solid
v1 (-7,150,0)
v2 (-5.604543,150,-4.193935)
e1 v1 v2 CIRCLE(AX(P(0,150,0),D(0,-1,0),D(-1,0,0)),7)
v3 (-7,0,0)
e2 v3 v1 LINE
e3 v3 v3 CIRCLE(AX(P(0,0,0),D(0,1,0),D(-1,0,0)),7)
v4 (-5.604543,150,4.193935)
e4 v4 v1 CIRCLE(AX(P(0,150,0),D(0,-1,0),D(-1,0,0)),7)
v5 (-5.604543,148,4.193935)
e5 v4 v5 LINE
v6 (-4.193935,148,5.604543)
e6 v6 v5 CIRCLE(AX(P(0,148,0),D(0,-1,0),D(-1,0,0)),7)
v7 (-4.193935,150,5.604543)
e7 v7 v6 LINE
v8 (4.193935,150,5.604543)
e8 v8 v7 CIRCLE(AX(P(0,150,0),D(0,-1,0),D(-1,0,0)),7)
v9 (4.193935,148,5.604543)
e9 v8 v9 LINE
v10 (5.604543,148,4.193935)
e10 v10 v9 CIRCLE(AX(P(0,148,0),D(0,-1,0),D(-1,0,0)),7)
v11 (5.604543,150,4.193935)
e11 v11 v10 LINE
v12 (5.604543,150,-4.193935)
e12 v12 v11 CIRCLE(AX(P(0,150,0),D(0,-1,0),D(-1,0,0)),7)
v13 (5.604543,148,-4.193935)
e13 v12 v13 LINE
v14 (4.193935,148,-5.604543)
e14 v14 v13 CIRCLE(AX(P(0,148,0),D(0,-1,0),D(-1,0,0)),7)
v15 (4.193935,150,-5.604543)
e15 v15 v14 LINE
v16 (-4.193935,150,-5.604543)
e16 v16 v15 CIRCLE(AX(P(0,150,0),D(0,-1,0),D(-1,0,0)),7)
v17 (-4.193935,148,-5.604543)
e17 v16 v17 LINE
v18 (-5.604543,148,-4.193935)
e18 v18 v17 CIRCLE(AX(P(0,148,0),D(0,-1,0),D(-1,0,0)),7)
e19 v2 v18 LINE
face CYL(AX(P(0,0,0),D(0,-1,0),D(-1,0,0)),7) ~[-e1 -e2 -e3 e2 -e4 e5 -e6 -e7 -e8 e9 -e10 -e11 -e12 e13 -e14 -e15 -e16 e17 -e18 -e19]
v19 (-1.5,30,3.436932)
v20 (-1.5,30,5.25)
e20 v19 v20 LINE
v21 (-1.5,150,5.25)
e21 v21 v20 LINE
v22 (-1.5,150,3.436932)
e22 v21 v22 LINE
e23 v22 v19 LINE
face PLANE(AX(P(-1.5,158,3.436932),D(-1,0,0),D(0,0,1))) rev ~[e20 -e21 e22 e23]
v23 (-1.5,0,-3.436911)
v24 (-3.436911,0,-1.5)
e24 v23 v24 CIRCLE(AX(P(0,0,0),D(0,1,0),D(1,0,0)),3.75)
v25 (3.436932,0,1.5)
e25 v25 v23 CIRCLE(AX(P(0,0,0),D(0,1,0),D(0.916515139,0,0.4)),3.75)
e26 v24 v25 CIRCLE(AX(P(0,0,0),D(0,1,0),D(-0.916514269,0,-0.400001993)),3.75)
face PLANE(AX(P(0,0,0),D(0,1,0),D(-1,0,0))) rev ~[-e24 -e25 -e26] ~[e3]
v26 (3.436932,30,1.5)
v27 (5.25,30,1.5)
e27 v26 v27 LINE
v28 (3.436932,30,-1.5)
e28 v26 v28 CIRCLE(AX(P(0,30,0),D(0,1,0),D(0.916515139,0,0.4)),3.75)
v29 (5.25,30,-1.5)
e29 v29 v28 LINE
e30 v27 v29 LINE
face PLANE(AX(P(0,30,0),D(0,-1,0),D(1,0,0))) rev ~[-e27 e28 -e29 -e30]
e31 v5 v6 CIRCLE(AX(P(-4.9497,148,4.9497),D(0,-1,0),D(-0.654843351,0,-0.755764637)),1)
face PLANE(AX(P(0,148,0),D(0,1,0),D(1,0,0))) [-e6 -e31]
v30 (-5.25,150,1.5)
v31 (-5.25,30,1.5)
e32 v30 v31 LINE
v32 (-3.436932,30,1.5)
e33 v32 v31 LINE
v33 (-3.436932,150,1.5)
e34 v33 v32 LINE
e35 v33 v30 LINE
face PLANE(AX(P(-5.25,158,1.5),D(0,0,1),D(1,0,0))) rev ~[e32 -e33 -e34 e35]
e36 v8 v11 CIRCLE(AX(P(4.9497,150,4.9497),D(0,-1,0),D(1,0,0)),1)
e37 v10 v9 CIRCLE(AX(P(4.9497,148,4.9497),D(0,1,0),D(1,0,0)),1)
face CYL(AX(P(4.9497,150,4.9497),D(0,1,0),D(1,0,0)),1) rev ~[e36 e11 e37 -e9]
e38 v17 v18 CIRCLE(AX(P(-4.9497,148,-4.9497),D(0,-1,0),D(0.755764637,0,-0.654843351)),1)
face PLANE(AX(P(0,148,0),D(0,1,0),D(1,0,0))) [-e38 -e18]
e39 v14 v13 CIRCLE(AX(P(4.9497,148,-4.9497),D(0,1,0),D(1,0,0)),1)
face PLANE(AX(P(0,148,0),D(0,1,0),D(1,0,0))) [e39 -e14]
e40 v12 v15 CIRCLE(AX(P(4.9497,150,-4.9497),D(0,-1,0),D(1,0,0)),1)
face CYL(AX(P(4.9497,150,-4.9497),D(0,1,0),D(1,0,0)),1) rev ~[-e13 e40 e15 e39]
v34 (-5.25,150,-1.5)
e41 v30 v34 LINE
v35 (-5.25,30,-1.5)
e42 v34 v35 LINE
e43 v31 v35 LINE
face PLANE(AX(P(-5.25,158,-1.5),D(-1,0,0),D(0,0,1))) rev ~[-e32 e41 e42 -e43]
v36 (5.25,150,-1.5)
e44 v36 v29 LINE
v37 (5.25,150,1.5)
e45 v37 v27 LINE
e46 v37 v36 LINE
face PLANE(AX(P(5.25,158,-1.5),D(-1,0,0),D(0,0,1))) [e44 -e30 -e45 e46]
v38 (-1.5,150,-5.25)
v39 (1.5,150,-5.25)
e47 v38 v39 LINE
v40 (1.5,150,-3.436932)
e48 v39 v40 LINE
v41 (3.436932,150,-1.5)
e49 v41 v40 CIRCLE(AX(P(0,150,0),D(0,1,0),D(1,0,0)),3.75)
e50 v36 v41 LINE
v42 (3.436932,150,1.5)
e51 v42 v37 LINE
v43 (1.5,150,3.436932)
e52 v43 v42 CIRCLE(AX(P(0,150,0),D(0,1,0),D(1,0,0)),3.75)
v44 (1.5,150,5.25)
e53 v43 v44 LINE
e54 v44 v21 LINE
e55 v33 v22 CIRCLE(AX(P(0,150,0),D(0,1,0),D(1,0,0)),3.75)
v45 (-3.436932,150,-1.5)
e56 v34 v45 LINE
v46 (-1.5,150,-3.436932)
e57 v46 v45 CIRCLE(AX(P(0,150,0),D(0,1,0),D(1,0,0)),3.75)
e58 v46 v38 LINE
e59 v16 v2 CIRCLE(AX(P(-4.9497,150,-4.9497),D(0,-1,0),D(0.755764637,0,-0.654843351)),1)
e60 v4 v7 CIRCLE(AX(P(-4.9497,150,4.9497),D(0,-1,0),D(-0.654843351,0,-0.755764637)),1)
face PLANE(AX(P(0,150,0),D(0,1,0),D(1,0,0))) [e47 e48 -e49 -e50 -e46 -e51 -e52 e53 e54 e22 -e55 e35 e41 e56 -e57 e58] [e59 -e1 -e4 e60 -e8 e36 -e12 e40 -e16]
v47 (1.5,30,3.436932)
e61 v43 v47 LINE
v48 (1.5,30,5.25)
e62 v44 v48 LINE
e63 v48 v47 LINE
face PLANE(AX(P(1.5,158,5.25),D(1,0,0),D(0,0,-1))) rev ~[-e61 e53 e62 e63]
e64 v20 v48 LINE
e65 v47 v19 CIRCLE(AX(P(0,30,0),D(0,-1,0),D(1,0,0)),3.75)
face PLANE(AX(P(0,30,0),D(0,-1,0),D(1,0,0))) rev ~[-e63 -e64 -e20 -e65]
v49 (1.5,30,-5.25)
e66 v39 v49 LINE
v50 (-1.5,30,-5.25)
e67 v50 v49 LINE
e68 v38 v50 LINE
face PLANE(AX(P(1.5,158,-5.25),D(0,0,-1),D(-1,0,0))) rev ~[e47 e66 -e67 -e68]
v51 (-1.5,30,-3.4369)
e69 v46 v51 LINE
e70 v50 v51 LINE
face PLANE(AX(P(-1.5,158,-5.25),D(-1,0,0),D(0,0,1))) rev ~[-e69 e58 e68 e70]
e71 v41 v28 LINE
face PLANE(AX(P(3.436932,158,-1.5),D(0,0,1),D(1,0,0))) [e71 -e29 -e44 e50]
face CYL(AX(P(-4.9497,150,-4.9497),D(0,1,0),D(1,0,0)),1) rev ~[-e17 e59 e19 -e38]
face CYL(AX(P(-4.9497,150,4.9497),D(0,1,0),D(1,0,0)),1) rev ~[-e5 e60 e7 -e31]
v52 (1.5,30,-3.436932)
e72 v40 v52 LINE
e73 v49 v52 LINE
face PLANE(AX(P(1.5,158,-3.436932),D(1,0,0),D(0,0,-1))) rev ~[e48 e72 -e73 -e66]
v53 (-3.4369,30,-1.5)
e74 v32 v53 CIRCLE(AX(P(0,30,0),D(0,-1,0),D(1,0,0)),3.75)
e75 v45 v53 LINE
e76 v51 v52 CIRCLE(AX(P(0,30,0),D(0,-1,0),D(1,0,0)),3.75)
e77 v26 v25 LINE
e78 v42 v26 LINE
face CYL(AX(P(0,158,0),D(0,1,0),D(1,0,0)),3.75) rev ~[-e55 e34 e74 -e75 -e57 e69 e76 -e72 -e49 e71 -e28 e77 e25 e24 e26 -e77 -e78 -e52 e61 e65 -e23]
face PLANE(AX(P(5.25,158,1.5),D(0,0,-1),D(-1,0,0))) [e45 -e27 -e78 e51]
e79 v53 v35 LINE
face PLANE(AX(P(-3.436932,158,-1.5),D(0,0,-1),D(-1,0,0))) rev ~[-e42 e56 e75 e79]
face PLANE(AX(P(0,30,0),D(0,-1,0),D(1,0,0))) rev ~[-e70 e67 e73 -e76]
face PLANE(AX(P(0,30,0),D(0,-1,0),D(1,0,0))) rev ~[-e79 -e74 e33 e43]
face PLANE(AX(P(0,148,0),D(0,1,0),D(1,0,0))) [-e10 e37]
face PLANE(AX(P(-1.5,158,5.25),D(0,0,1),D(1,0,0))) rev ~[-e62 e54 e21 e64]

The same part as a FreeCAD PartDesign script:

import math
import FreeCAD as App
import Part
import Sketcher
Q = App.Units.Quantity

doc = App.newDocument("Part")
params = doc.addObject("Spreadsheet::Sheet", "Params")
for row, (alias, value) in enumerate([
    ("sketch1_diameter", "14 mm"),
    ("pad1_length", "158 mm"),
    ("sketch2_width", "3 mm"),
    ("sketch2_radius", "3.75 mm"),
    ("sketch3_radius", "9 mm"),
    ("sketch3_width", "1 mm"),
    ("pocket2_length", "8 mm"),
    ("sketch4_width", "3 mm"),
    ("sketch4_radius", "3.75 mm"),
    ("pad2_length", "30 mm"),
    ("sketch5_diameter", "2 mm"),
    ("pocket3_length", "2 mm"),
], start=1):
    params.set(f"A{row}", alias)
    params.set(f"B{row}", "=" + value)
    params.setAlias(f"B{row}", alias)

body = doc.addObject("PartDesign::Body", "Body")

# Sketch on XZ plane
sketch1 = doc.addObject("Sketcher::SketchObject", "Sketch")
body.addObject(sketch1)
sketch1.AttachmentSupport = (doc.XZ_Plane, [""])
sketch1.MapMode = "FlatFace"
sketch1.addGeometry(Part.Circle(App.Vector(0, 0, 0), App.Vector(0, 0, 1), 7), False)
sketch1.addConstraint([
    Sketcher.Constraint("Coincident", 0, 3, -1, 1),
    Sketcher.Constraint("Diameter", 0, Q("14 mm")),
])
sketch1.setExpression("Constraints[1]", "Params.sketch1_diameter")
pad1 = doc.addObject("PartDesign::Pad", "Pad")
body.addObject(pad1)
pad1.Profile = sketch1
pad1.setExpression("Length", "Params.pad1_length")
pad1.Reversed = True

# Sketch on XZ plane
sketch2 = doc.addObject("Sketcher::SketchObject", "Sketch001")
body.addObject(sketch2)
sketch2.AttachmentSupport = (doc.XZ_Plane, [""])
sketch2.MapMode = "FlatFace"
sketch2.AttachmentOffset = App.Placement(App.Vector(0, 0, -158), App.Rotation())
sketch2.addGeometry([
    Part.LineSegment(App.Vector(3.4, 1.5, 0), App.Vector(5.2, 1.5, 0)),  # 0
    Part.LineSegment(App.Vector(5.2, 1.5, 0), App.Vector(5.2, -1.5, 0)),  # 1
    Part.LineSegment(App.Vector(5.2, -1.5, 0), App.Vector(3.4, -1.5, 0)),  # 2
    Part.ArcOfCircle(Part.Circle(App.Vector(0, 0, 0), App.Vector(0, 0, 1), 3.8), math.radians(-66), math.radians(-24)),  # 3
    Part.LineSegment(App.Vector(1.5, -3.4, 0), App.Vector(1.5, -5.2, 0)),  # 4
    Part.LineSegment(App.Vector(1.5, -5.2, 0), App.Vector(-1.5, -5.2, 0)),  # 5
    Part.LineSegment(App.Vector(-1.5, -5.2, 0), App.Vector(-1.5, -3.4, 0)),  # 6
    Part.ArcOfCircle(Part.Circle(App.Vector(0, 0, 0), App.Vector(0, 0, 1), 3.8), math.radians(-156), math.radians(-114)),  # 7
    Part.LineSegment(App.Vector(-3.4, -1.5, 0), App.Vector(-5.2, -1.5, 0)),  # 8
    Part.LineSegment(App.Vector(-5.2, -1.5, 0), App.Vector(-5.2, 1.5, 0)),  # 9
    Part.LineSegment(App.Vector(-5.2, 1.5, 0), App.Vector(-3.4, 1.5, 0)),  # 10
    Part.ArcOfCircle(Part.Circle(App.Vector(0, 0, 0), App.Vector(0, 0, 1), 3.8), math.radians(114), math.radians(156)),  # 11
    Part.LineSegment(App.Vector(-1.5, 3.4, 0), App.Vector(-1.5, 5.2, 0)),  # 12
    Part.LineSegment(App.Vector(-1.5, 5.2, 0), App.Vector(1.5, 5.2, 0)),  # 13
    Part.LineSegment(App.Vector(1.5, 5.2, 0), App.Vector(1.5, 3.4, 0)),  # 14
    Part.ArcOfCircle(Part.Circle(App.Vector(0, 0, 0), App.Vector(0, 0, 1), 3.8), math.radians(24), math.radians(66)),  # 15
], False)
sketch2.addConstraint([
    Sketcher.Constraint("Coincident", 0, 2, 1, 1),
    Sketcher.Constraint("Coincident", 1, 2, 2, 1),
    Sketcher.Constraint("Coincident", 2, 2, 3, 2),
    Sketcher.Constraint("Coincident", 3, 1, 4, 1),
    Sketcher.Constraint("Coincident", 4, 2, 5, 1),
    Sketcher.Constraint("Coincident", 5, 2, 6, 1),
    Sketcher.Constraint("Coincident", 6, 2, 7, 2),
    Sketcher.Constraint("Coincident", 7, 1, 8, 1),
    Sketcher.Constraint("Coincident", 8, 2, 9, 1),
    Sketcher.Constraint("Coincident", 9, 2, 10, 1),
    Sketcher.Constraint("Coincident", 10, 2, 11, 2),
    Sketcher.Constraint("Coincident", 11, 1, 12, 1),
    Sketcher.Constraint("Coincident", 12, 2, 13, 1),
    Sketcher.Constraint("Coincident", 13, 2, 14, 1),
    Sketcher.Constraint("Coincident", 14, 2, 15, 2),
    Sketcher.Constraint("Coincident", 15, 1, 0, 1),
    Sketcher.Constraint("Horizontal", 0),
    Sketcher.Constraint("Vertical", 1),
    Sketcher.Constraint("Horizontal", 2),
    Sketcher.Constraint("Vertical", 4),
    Sketcher.Constraint("Horizontal", 5),
    Sketcher.Constraint("Vertical", 6),
    Sketcher.Constraint("Horizontal", 8),
    Sketcher.Constraint("Vertical", 9),
    Sketcher.Constraint("Horizontal", 10),
    Sketcher.Constraint("Vertical", 12),
    Sketcher.Constraint("Horizontal", 13),
    Sketcher.Constraint("Vertical", 14),
    Sketcher.Constraint("Coincident", 3, 3, -1, 1),
    Sketcher.Constraint("Coincident", 7, 3, -1, 1),
    Sketcher.Constraint("Coincident", 11, 3, -1, 1),
    Sketcher.Constraint("Coincident", 15, 3, -1, 1),
    Sketcher.Constraint("Equal", 3, 7),
    Sketcher.Constraint("Equal", 7, 11),
    Sketcher.Constraint("Equal", 11, 15),
    Sketcher.Constraint("Symmetric", 0, 2, 8, 2, -1, 1),
    Sketcher.Constraint("Symmetric", 4, 2, 12, 2, -1, 1),
    Sketcher.Constraint("Horizontal", 3, 1, 6, 2),
    Sketcher.Constraint("Horizontal", 2, 2, 7, 1),
    Sketcher.Constraint("Horizontal", 0, 2, 9, 2),
    Sketcher.Constraint("Horizontal", 11, 1, 14, 2),
    Sketcher.Constraint("Equal", 13, 1),
    Sketcher.Constraint("Equal", 10, 4),
    Sketcher.Constraint("DistanceX", 5, 2, 5, 1, Q("3 mm")),
    Sketcher.Constraint("Radius", 3, Q("3.75 mm")),
    Sketcher.Constraint("DistanceX", 0, 1, 0, 2, Q("1.813 mm")),
])
sketch2.setExpression("Constraints[43]", "Params.sketch2_width")
sketch2.setExpression("Constraints[44]", "Params.sketch2_radius")
pocket1 = doc.addObject("PartDesign::Pocket", "Pocket")
body.addObject(pocket1)
pocket1.Profile = sketch2
pocket1.Type = "ThroughAll"
pocket1.Reversed = True

# Sketch on XZ plane
sketch3 = doc.addObject("Sketcher::SketchObject", "Sketch002")
body.addObject(sketch3)
sketch3.AttachmentSupport = (doc.XZ_Plane, [""])
sketch3.MapMode = "FlatFace"
sketch3.AttachmentOffset = App.Placement(App.Vector(0, 0, -158), App.Rotation())
sketch3.addGeometry([
    Part.ArcOfCircle(Part.Circle(App.Vector(0, 0, 0), App.Vector(0, 0, 1), 9), math.radians(-87), math.radians(87)),  # 0
    Part.LineSegment(App.Vector(0.5, -9, 0), App.Vector(0.5, -9.5, 0)),  # 1
    Part.LineSegment(App.Vector(0.5, -9.5, 0), App.Vector(-0.5, -9.5, 0)),  # 2
    Part.LineSegment(App.Vector(-0.5, -9.5, 0), App.Vector(-0.5, -9, 0)),  # 3
    Part.ArcOfCircle(Part.Circle(App.Vector(0, 0, 0), App.Vector(0, 0, 1), 9), math.radians(93), math.radians(267)),  # 4
    Part.LineSegment(App.Vector(-0.5, 9, 0), App.Vector(-0.5, 9.5, 0)),  # 5
    Part.LineSegment(App.Vector(-0.5, 9.5, 0), App.Vector(0.5, 9.5, 0)),  # 6
    Part.LineSegment(App.Vector(0.5, 9.5, 0), App.Vector(0.5, 9, 0)),  # 7
], False)
sketch3.addConstraint([
    Sketcher.Constraint("Coincident", 0, 1, 1, 1),
    Sketcher.Constraint("Coincident", 1, 2, 2, 1),
    Sketcher.Constraint("Coincident", 2, 2, 3, 1),
    Sketcher.Constraint("Coincident", 3, 2, 4, 2),
    Sketcher.Constraint("Coincident", 4, 1, 5, 1),
    Sketcher.Constraint("Coincident", 5, 2, 6, 1),
    Sketcher.Constraint("Coincident", 6, 2, 7, 1),
    Sketcher.Constraint("Coincident", 7, 2, 0, 2),
    Sketcher.Constraint("Vertical", 1),
    Sketcher.Constraint("Horizontal", 2),
    Sketcher.Constraint("Vertical", 3),
    Sketcher.Constraint("Vertical", 5),
    Sketcher.Constraint("Horizontal", 6),
    Sketcher.Constraint("Vertical", 7),
    Sketcher.Constraint("Coincident", 0, 3, -1, 1),
    Sketcher.Constraint("Coincident", 4, 3, -1, 1),
    Sketcher.Constraint("Equal", 0, 4),
    Sketcher.Constraint("Symmetric", 1, 2, 5, 2, -1, 1),
    Sketcher.Constraint("Horizontal", 0, 1, 3, 2),
    Sketcher.Constraint("Horizontal", 4, 1, 7, 2),
    Sketcher.Constraint("Radius", 0, Q("9 mm")),
    Sketcher.Constraint("DistanceX", 2, 2, 2, 1, Q("1 mm")),
    Sketcher.Constraint("DistanceY", 1, 2, -1, 1, Q("9.5 mm")),
])
sketch3.setExpression("Constraints[20]", "Params.sketch3_radius")
sketch3.setExpression("Constraints[21]", "Params.sketch3_width")
pocket2 = doc.addObject("PartDesign::Pocket", "Pocket001")
body.addObject(pocket2)
pocket2.Profile = sketch3
pocket2.setExpression("Length", "Params.pocket2_length")
pocket2.Reversed = True

# Sketch on XZ plane
sketch4 = doc.addObject("Sketcher::SketchObject", "Sketch003")
body.addObject(sketch4)
sketch4.AttachmentSupport = (doc.XZ_Plane, [""])
sketch4.MapMode = "FlatFace"
sketch4.addGeometry([
    Part.LineSegment(App.Vector(-1.5, 5.2, 0), App.Vector(-1.5, 3.4, 0)),  # 0
    Part.ArcOfCircle(Part.Circle(App.Vector(0, 0, 0), App.Vector(0, 0, 1), 3.8), math.radians(66), math.radians(114)),  # 1
    Part.LineSegment(App.Vector(1.5, 3.4, 0), App.Vector(1.5, 5.2, 0)),  # 2
    Part.LineSegment(App.Vector(1.5, 5.2, 0), App.Vector(-1.5, 5.2, 0)),  # 3
    Part.ArcOfCircle(Part.Circle(App.Vector(0, 0, 0), App.Vector(0, 0, 1), 3.8), math.radians(156), math.radians(204)),  # 4
    Part.LineSegment(App.Vector(-3.4, 1.5, 0), App.Vector(-5.2, 1.5, 0)),  # 5
    Part.LineSegment(App.Vector(-5.2, 1.5, 0), App.Vector(-5.2, -1.5, 0)),  # 6
    Part.LineSegment(App.Vector(-5.2, -1.5, 0), App.Vector(-3.4, -1.5, 0)),  # 7
    Part.LineSegment(App.Vector(5.2, 1.5, 0), App.Vector(3.4, 1.5, 0)),  # 8
    Part.ArcOfCircle(Part.Circle(App.Vector(0, 0, 0), App.Vector(0, 0, 1), 3.8), math.radians(-24), math.radians(24)),  # 9
    Part.LineSegment(App.Vector(3.4, -1.5, 0), App.Vector(5.2, -1.5, 0)),  # 10
    Part.LineSegment(App.Vector(5.2, -1.5, 0), App.Vector(5.2, 1.5, 0)),  # 11
    Part.ArcOfCircle(Part.Circle(App.Vector(0, 0, 0), App.Vector(0, 0, 1), 3.8), math.radians(-114), math.radians(-66)),  # 12
    Part.LineSegment(App.Vector(-1.5, -3.4, 0), App.Vector(-1.5, -5.2, 0)),  # 13
    Part.LineSegment(App.Vector(-1.5, -5.2, 0), App.Vector(1.5, -5.2, 0)),  # 14
    Part.LineSegment(App.Vector(1.5, -5.2, 0), App.Vector(1.5, -3.4, 0)),  # 15
], False)
sketch4.addConstraint([
    Sketcher.Constraint("Coincident", 0, 2, 1, 2),
    Sketcher.Constraint("Coincident", 1, 1, 2, 1),
    Sketcher.Constraint("Coincident", 2, 2, 3, 1),
    Sketcher.Constraint("Coincident", 3, 2, 0, 1),
    Sketcher.Constraint("Coincident", 4, 1, 5, 1),
    Sketcher.Constraint("Coincident", 5, 2, 6, 1),
    Sketcher.Constraint("Coincident", 6, 2, 7, 1),
    Sketcher.Constraint("Coincident", 7, 2, 4, 2),
    Sketcher.Constraint("Coincident", 8, 2, 9, 2),
    Sketcher.Constraint("Coincident", 9, 1, 10, 1),
    Sketcher.Constraint("Coincident", 10, 2, 11, 1),
    Sketcher.Constraint("Coincident", 11, 2, 8, 1),
    Sketcher.Constraint("Coincident", 12, 1, 13, 1),
    Sketcher.Constraint("Coincident", 13, 2, 14, 1),
    Sketcher.Constraint("Coincident", 14, 2, 15, 1),
    Sketcher.Constraint("Coincident", 15, 2, 12, 2),
    Sketcher.Constraint("Vertical", 0),
    Sketcher.Constraint("Vertical", 2),
    Sketcher.Constraint("Horizontal", 3),
    Sketcher.Constraint("Horizontal", 5),
    Sketcher.Constraint("Vertical", 6),
    Sketcher.Constraint("Horizontal", 7),
    Sketcher.Constraint("Horizontal", 8),
    Sketcher.Constraint("Horizontal", 10),
    Sketcher.Constraint("Vertical", 11),
    Sketcher.Constraint("Vertical", 13),
    Sketcher.Constraint("Horizontal", 14),
    Sketcher.Constraint("Vertical", 15),
    Sketcher.Constraint("Coincident", 1, 3, -1, 1),
    Sketcher.Constraint("Coincident", 4, 3, -1, 1),
    Sketcher.Constraint("Coincident", 9, 3, -1, 1),
    Sketcher.Constraint("Coincident", 12, 3, -1, 1),
    Sketcher.Constraint("Equal", 1, 4),
    Sketcher.Constraint("Equal", 4, 9),
    Sketcher.Constraint("Equal", 9, 12),
    Sketcher.Constraint("Symmetric", 5, 2, 10, 2, -1, 1),
    Sketcher.Constraint("Symmetric", 2, 2, 13, 2, -1, 1),
    Sketcher.Constraint("Horizontal", 0, 2, 1, 1),
    Sketcher.Constraint("Horizontal", 5, 2, 8, 2),
    Sketcher.Constraint("Horizontal", 7, 2, 9, 1),
    Sketcher.Constraint("Horizontal", 12, 1, 15, 2),
    Sketcher.Constraint("Equal", 10, 0),
    Sketcher.Constraint("Equal", 14, 6),
    Sketcher.Constraint("DistanceX", 3, 2, 3, 1, Q("3 mm")),
    Sketcher.Constraint("Radius", 1, Q("3.75 mm")),
    Sketcher.Constraint("DistanceX", 5, 2, 5, 1, Q("1.813 mm")),
])
sketch4.setExpression("Constraints[43]", "Params.sketch4_width")
sketch4.setExpression("Constraints[44]", "Params.sketch4_radius")
pad2 = doc.addObject("PartDesign::Pad", "Pad001")
body.addObject(pad2)
pad2.Profile = sketch4
pad2.setExpression("Length", "Params.pad2_length")
pad2.Reversed = True

# Sketch on XZ plane
sketch5 = doc.addObject("Sketcher::SketchObject", "Sketch004")
body.addObject(sketch5)
sketch5.AttachmentSupport = (doc.XZ_Plane, [""])
sketch5.MapMode = "FlatFace"
sketch5.AttachmentOffset = App.Placement(App.Vector(0, 0, -150), App.Rotation())
sketch5.addGeometry([
    Part.Circle(App.Vector(4.9, -4.9, 0), App.Vector(0, 0, 1), 1),
    Part.Circle(App.Vector(4.9, 4.9, 0), App.Vector(0, 0, 1), 1),
    Part.Circle(App.Vector(-4.9, -4.9, 0), App.Vector(0, 0, 1), 1),
    Part.Circle(App.Vector(-4.9, 4.9, 0), App.Vector(0, 0, 1), 1),
], False)
sketch5.addConstraint([
    Sketcher.Constraint("Equal", 0, 1),
    Sketcher.Constraint("Equal", 1, 2),
    Sketcher.Constraint("Equal", 2, 3),
    Sketcher.Constraint("Symmetric", 1, 3, 2, 3, -1, 1),
    Sketcher.Constraint("Symmetric", 0, 3, 3, 3, -1, 1),
    Sketcher.Constraint("Symmetric", 0, 3, 2, 3, -2),
    Sketcher.Constraint("Diameter", 0, Q("2 mm")),
    Sketcher.Constraint("DistanceX", -1, 1, 0, 3, Q("4.9497 mm")),
    Sketcher.Constraint("DistanceY", 0, 3, -1, 1, Q("4.9497 mm")),
])
sketch5.setExpression("Constraints[6]", "Params.sketch5_diameter")
pocket3 = doc.addObject("PartDesign::Pocket", "Pocket002")
body.addObject(pocket3)
pocket3.Profile = sketch5
pocket3.setExpression("Length", "Params.pocket3_length")
pocket3.Reversed = True

doc.recompute()
